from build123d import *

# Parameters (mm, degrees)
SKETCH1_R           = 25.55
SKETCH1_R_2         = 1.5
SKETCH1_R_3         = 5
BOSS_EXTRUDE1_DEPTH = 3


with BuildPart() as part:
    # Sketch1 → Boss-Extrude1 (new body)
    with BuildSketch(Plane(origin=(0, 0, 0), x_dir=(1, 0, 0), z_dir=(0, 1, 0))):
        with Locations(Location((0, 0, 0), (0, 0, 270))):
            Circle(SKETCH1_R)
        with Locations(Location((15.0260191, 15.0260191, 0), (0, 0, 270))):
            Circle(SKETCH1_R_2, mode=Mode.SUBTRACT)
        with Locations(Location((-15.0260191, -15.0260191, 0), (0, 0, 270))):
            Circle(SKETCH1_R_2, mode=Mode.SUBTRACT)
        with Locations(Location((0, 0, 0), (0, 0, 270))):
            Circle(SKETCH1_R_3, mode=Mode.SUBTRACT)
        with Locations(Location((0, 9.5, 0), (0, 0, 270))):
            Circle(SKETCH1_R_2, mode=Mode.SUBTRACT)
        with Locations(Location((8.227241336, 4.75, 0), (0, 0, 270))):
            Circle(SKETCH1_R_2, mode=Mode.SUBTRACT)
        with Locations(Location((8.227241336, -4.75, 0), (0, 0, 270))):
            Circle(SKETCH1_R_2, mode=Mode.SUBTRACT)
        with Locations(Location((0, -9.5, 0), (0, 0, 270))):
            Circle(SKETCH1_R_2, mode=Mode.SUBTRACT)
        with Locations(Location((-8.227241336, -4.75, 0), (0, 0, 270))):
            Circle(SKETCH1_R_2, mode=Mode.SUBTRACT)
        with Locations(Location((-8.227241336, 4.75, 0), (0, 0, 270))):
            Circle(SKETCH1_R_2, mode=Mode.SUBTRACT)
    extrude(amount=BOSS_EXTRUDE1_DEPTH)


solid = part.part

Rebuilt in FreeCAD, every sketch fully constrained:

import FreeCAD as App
import Part
import Sketcher

V = App.Vector

doc = App.newDocument("Part")
body = doc.addObject("PartDesign::Body", "Body")

sketch1 = body.newObject("Sketcher::SketchObject", "Sketch")
sketch1.AttachmentSupport = (doc.getObject("XZ_Plane"), [""])
sketch1.MapMode = "FlatFace"
sketch1.addGeometry([
    Part.Circle(V(0, 0, 0), V(0, 0, 1), 25.6),
    Part.Circle(V(-8.2, -4.8, 0), V(0, 0, 1), 1.5),
    Part.Circle(V(-15, 15, 0), V(0, 0, 1), 1.5),
    Part.Circle(V(-8.2, 4.8, 0), V(0, 0, 1), 1.5),
    Part.Circle(V(0, -9.5, 0), V(0, 0, 1), 1.5),
    Part.Circle(V(0, 0, 0), V(0, 0, 1), 5),
    Part.Circle(V(8.2, -4.8, 0), V(0, 0, 1), 1.5),
    Part.Circle(V(15, -15, 0), V(0, 0, 1), 1.5),
    Part.Circle(V(8.2, 4.8, 0), V(0, 0, 1), 1.5),
    Part.Circle(V(0, 9.5, 0), V(0, 0, 1), 1.5),
], False)
sketch1.addConstraint([
    Sketcher.Constraint("Coincident", 0, 3, -1, 1),
    Sketcher.Constraint("Coincident", 5, 3, -1, 1),
    Sketcher.Constraint("Equal", 1, 2),
    Sketcher.Constraint("Equal", 2, 3),
    Sketcher.Constraint("Equal", 3, 4),
    Sketcher.Constraint("Equal", 4, 6),
    Sketcher.Constraint("Equal", 6, 7),
    Sketcher.Constraint("Equal", 7, 8),
    Sketcher.Constraint("Equal", 8, 9),
    Sketcher.Constraint("Symmetric", 3, 3, 6, 3, -1, 1),
    Sketcher.Constraint("Symmetric", 2, 3, 7, 3, -1, 1),
    Sketcher.Constraint("Symmetric", 1, 3, 8, 3, -1, 1),
    Sketcher.Constraint("Symmetric", 4, 3, 9, 3, -1, 1),
    Sketcher.Constraint("Symmetric", 1, 3, 6, 3, -2),
    Sketcher.Constraint("PointOnObject", 4, 3, -2),
    Sketcher.Constraint("Diameter", 1, 3.0),
    Sketcher.Constraint("Diameter", 5, 10.0),
    Sketcher.Constraint("Diameter", 0, 51.1),
    Sketcher.Constraint("DistanceY", 4, 3, -1, 1, 9.5),
    Sketcher.Constraint("DistanceY", 1, 3, 3, 3, 9.5),
    Sketcher.Constraint("DistanceX", 1, 3, -1, 1, 8.227241),
    Sketcher.Constraint("DistanceX", 2, 3, -1, 1, 15.026019),
    Sketcher.Constraint("DistanceY", -1, 1, 2, 3, 15.026019),
])
pad1 = body.newObject("PartDesign::Pad", "Pad")
pad1.Profile = sketch1
pad1.Length = 3
pad1.Reversed = True

doc.recompute()
